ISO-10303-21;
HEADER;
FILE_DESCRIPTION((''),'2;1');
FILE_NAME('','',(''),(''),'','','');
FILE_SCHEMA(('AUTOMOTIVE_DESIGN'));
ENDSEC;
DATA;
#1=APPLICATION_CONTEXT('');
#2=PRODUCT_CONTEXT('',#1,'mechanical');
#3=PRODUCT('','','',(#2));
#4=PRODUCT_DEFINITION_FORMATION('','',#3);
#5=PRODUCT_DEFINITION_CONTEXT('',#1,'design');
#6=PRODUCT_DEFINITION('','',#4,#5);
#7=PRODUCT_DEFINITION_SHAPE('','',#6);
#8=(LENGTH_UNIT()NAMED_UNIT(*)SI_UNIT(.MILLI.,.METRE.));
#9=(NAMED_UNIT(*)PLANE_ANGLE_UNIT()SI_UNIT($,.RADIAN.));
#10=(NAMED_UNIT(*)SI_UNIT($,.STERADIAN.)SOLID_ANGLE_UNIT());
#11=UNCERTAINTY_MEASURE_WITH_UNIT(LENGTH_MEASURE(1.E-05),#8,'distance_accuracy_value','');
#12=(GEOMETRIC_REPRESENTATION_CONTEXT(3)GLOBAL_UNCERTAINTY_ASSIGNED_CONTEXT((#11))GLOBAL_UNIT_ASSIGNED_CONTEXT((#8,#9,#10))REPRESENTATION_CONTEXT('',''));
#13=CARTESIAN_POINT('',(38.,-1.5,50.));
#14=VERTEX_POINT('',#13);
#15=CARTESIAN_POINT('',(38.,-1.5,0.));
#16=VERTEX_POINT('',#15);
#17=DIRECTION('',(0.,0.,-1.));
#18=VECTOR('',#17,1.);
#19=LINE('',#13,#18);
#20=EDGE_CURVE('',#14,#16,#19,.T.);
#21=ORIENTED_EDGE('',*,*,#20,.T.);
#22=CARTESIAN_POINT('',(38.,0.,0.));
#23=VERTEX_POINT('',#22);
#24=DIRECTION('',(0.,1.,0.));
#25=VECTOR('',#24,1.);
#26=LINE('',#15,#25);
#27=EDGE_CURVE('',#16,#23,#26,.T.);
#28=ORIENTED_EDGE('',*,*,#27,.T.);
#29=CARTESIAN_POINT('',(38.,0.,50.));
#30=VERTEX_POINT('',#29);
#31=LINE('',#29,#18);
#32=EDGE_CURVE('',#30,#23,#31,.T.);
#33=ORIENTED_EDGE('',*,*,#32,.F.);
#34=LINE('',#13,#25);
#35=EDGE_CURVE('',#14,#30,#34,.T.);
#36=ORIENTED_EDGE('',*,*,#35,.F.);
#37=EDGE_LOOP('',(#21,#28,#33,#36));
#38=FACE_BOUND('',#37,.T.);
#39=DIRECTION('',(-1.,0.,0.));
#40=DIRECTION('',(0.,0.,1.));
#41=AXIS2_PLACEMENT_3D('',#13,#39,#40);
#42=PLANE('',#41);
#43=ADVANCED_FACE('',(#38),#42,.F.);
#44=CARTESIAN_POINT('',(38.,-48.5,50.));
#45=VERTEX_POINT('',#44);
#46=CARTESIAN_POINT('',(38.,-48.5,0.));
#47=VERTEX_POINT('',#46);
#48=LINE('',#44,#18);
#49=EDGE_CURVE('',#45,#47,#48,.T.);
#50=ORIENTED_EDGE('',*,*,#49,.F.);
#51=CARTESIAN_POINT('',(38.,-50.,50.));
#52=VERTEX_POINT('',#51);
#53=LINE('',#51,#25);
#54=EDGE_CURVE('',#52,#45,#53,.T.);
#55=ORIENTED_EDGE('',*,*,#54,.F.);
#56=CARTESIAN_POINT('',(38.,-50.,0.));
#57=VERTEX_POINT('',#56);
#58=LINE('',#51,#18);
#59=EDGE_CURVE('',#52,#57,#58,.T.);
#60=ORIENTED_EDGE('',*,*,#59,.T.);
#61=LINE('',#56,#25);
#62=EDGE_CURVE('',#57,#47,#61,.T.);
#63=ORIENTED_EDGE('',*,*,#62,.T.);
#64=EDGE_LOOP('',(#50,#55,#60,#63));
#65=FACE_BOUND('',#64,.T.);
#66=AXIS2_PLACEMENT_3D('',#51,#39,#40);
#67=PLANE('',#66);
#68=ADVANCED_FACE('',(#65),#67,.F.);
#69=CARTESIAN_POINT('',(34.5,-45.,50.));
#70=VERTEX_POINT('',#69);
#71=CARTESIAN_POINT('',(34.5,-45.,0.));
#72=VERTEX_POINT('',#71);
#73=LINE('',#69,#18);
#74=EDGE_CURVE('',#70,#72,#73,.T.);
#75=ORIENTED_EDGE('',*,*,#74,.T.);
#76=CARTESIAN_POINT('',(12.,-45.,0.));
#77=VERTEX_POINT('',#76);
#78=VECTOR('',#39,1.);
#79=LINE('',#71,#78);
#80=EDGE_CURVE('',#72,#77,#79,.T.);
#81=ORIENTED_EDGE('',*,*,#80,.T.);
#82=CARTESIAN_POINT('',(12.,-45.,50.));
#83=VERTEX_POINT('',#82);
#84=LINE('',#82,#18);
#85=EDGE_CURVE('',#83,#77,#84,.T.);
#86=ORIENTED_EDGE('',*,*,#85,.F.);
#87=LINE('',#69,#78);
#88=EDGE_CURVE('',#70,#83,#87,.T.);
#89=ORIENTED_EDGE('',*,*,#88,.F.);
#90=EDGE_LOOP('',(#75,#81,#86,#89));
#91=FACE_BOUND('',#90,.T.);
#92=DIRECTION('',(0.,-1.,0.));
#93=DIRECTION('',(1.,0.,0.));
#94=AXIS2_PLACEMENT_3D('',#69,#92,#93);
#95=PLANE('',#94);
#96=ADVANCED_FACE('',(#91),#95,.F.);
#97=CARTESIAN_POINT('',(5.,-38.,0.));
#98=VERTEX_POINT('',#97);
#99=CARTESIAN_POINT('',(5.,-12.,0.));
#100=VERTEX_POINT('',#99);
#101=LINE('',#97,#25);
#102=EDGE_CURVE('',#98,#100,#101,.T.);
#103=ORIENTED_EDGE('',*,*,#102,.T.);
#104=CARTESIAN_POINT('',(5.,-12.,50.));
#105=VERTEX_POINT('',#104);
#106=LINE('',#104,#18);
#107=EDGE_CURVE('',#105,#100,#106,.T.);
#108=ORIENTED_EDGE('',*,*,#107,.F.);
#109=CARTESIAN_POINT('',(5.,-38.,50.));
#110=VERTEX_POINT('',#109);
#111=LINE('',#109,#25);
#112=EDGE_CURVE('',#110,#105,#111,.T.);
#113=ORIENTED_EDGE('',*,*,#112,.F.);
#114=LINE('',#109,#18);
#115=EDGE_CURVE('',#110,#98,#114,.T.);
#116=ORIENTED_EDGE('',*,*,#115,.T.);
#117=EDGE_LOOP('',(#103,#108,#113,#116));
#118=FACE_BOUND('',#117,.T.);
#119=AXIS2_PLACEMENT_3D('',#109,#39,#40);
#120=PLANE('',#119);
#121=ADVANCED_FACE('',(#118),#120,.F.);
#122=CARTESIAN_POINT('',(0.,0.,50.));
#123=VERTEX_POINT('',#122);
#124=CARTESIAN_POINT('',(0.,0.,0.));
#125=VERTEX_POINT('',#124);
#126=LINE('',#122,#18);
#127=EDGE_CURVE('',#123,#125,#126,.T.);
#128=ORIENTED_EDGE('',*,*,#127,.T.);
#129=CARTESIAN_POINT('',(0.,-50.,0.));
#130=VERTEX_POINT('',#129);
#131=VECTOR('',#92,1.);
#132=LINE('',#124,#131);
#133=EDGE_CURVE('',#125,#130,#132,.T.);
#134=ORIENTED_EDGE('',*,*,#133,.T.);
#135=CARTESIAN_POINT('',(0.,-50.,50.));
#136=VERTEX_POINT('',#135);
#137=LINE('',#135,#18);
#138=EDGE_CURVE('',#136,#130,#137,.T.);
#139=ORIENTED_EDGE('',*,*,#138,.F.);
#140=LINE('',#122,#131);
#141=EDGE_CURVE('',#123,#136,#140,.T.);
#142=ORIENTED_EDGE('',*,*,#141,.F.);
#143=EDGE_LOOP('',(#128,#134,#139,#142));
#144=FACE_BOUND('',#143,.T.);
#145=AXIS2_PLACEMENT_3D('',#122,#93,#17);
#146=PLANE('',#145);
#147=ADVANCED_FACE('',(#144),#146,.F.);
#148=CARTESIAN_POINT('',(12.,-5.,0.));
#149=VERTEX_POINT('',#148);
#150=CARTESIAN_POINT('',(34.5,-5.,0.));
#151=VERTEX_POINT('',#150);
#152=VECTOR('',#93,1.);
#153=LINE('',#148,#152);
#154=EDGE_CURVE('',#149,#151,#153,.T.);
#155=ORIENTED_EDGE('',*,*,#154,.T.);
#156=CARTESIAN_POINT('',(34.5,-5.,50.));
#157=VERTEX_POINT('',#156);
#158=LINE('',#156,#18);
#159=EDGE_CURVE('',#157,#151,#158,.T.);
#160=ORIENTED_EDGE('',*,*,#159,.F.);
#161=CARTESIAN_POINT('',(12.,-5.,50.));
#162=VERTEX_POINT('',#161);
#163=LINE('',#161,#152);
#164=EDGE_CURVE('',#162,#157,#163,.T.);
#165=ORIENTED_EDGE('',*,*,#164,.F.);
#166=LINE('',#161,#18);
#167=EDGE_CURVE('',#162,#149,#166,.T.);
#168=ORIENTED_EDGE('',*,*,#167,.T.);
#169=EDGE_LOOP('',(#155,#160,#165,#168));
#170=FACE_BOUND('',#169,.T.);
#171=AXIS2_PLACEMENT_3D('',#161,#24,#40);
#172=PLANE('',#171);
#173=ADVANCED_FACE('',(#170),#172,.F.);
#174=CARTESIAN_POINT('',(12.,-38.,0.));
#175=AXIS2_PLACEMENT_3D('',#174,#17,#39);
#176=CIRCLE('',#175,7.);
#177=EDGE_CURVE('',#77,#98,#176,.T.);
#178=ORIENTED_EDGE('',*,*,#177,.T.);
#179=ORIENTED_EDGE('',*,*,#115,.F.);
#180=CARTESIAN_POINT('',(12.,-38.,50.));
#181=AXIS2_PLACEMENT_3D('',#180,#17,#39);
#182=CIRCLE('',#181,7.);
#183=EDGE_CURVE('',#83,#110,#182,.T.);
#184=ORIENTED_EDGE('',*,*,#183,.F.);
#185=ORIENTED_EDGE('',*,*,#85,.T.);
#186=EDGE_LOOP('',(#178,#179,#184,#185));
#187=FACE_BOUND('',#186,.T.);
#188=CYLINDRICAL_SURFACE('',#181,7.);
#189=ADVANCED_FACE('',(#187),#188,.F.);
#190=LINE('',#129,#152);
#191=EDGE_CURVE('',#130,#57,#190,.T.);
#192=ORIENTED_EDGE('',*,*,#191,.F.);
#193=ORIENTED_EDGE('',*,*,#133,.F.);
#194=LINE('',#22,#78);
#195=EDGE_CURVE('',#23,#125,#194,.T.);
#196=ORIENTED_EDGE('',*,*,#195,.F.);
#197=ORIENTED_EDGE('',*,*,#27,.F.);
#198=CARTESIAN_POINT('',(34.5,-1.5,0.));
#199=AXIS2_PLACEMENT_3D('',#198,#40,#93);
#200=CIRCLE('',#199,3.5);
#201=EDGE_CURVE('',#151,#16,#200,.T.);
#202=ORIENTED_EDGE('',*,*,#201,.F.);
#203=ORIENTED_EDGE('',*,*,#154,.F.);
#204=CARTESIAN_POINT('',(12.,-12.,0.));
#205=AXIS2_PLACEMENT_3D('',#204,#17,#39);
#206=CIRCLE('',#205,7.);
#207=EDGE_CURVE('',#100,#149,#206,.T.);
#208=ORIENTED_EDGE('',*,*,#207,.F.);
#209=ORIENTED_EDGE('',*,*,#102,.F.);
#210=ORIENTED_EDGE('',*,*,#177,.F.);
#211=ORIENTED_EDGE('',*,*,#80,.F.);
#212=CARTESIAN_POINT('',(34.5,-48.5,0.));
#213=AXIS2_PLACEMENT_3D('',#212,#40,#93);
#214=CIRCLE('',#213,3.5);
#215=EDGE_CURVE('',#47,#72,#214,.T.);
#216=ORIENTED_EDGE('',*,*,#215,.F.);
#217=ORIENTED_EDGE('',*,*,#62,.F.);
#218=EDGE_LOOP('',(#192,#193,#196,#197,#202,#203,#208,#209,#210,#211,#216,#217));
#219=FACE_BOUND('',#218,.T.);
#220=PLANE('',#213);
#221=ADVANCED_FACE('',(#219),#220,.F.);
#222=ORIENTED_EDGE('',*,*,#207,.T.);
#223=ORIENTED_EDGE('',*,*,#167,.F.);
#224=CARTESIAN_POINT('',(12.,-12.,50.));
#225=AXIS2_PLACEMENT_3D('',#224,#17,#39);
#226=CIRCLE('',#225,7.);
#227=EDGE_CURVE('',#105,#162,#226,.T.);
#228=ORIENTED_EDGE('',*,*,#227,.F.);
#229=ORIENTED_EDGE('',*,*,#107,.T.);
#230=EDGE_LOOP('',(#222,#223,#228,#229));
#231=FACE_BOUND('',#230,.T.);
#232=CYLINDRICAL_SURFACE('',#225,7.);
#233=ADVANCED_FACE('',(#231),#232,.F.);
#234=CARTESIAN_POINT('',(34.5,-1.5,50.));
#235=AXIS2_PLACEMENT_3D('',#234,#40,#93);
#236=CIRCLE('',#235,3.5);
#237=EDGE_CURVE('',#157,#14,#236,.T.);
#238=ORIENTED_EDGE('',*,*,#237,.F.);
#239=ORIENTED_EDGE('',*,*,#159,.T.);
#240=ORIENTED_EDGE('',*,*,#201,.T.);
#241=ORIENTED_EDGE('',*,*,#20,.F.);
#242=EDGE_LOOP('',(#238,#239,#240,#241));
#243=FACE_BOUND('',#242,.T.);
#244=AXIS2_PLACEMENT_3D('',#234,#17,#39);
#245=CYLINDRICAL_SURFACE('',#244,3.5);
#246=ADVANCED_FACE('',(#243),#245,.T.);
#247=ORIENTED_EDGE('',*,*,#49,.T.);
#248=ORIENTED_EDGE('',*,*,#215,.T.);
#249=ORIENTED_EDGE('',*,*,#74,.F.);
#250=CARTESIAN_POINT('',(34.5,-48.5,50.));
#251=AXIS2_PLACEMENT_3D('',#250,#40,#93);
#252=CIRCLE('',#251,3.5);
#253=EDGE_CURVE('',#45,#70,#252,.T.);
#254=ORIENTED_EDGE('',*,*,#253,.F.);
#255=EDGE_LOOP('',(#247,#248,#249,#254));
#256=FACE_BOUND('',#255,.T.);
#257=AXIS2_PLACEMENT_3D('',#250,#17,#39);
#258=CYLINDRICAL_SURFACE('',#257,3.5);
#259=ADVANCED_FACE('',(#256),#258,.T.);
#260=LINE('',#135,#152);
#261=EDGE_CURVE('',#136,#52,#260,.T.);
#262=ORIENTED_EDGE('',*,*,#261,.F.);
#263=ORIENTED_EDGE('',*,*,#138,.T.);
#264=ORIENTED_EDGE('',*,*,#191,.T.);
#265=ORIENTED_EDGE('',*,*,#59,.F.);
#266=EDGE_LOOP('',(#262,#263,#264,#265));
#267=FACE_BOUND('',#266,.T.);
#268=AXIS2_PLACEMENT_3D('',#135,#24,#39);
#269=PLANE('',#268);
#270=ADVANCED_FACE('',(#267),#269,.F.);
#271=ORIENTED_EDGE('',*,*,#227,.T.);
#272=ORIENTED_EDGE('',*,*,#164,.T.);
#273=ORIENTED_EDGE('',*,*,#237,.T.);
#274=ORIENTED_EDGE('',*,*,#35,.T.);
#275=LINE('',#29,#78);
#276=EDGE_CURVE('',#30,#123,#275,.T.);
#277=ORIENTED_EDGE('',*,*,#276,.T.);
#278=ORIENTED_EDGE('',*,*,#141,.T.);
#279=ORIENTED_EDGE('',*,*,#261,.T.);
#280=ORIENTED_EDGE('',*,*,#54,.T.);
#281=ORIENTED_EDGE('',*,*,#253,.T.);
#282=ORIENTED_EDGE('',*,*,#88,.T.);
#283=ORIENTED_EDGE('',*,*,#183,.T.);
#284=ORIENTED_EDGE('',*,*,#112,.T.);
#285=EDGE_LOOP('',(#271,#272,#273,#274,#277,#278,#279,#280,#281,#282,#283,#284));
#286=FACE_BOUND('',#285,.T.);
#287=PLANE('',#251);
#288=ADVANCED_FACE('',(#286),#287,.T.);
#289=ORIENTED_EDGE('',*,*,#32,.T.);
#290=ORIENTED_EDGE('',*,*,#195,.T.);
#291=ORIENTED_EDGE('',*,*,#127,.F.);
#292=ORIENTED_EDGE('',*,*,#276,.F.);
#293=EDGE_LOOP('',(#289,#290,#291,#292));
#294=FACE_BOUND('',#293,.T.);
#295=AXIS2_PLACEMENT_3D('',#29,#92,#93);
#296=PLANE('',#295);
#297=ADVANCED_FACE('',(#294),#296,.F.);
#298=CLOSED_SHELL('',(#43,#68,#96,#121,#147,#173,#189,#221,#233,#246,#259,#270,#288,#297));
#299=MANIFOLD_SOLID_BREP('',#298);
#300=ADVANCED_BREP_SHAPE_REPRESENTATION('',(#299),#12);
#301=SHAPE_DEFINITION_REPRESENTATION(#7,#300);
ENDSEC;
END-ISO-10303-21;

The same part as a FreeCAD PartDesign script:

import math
import FreeCAD as App
import Part
import Sketcher
Q = App.Units.Quantity

doc = App.newDocument("Part")
body = doc.addObject("PartDesign::Body", "Body")

# Sketch on XY plane
sketch1 = body.newObject("Sketcher::SketchObject", "Sketch")
sketch1.AttachmentSupport = (doc.getObject("XY_Plane"), [""])
sketch1.MapMode = "FlatFace"
sketch1.addGeometry([
    Part.LineSegment(App.Vector(0, 0, 0), App.Vector(0, -50, 0)),  # 0
    Part.LineSegment(App.Vector(0, -50, 0), App.Vector(38, -50, 0)),  # 1
    Part.LineSegment(App.Vector(38, -50, 0), App.Vector(38, -48.5, 0)),  # 2
    Part.ArcOfCircle(Part.Circle(App.Vector(34.5, -48.5, 0), App.Vector(0, 0, 1), 3.5), math.radians(0), math.radians(90)),  # 3
    Part.LineSegment(App.Vector(34.5, -45, 0), App.Vector(12, -45, 0)),  # 4
    Part.ArcOfCircle(Part.Circle(App.Vector(12, -38, 0), App.Vector(0, 0, 1), 7), math.radians(-180), math.radians(-90)),  # 5
    Part.LineSegment(App.Vector(5, -38, 0), App.Vector(5, -12, 0)),  # 6
    Part.ArcOfCircle(Part.Circle(App.Vector(12, -12, 0), App.Vector(0, 0, 1), 7), math.radians(90), math.radians(180)),  # 7
    Part.LineSegment(App.Vector(12, -5, 0), App.Vector(34.5, -5, 0)),  # 8
    Part.ArcOfCircle(Part.Circle(App.Vector(34.5, -1.5, 0), App.Vector(0, 0, 1), 3.5), math.radians(-90), math.radians(0)),  # 9
    Part.LineSegment(App.Vector(38, -1.5, 0), App.Vector(38, 0, 0)),  # 10
    Part.LineSegment(App.Vector(38, 0, 0), App.Vector(0, 0, 0)),  # 11
], False)
sketch1.addConstraint([
    Sketcher.Constraint("Coincident", 0, 2, 1, 1),
    Sketcher.Constraint("Coincident", 1, 2, 2, 1),
    Sketcher.Constraint("Tangent", 2, 2, 3, 1),
    Sketcher.Constraint("Tangent", 3, 2, 4, 1),
    Sketcher.Constraint("Tangent", 4, 2, 5, 2),
    Sketcher.Constraint("Tangent", 5, 1, 6, 1),
    Sketcher.Constraint("Tangent", 6, 2, 7, 2),
    Sketcher.Constraint("Tangent", 7, 1, 8, 1),
    Sketcher.Constraint("Tangent", 8, 2, 9, 1),
    Sketcher.Constraint("Tangent", 9, 2, 10, 1),
    Sketcher.Constraint("Coincident", 10, 2, 11, 1),
    Sketcher.Constraint("Coincident", 11, 2, 0, 1),
    Sketcher.Constraint("Vertical", 0),
    Sketcher.Constraint("Horizontal", 1),
    Sketcher.Constraint("Vertical", 2),
    Sketcher.Constraint("Horizontal", 4),
    Sketcher.Constraint("Vertical", 6),
    Sketcher.Constraint("Horizontal", 8),
    Sketcher.Constraint("Vertical", 10),
    Sketcher.Constraint("Horizontal", 11),
    Sketcher.Constraint("Coincident", 11, 2, -1, 1),
    Sketcher.Constraint("Equal", 5, 7),
    Sketcher.Constraint("Equal", 3, 9),
    Sketcher.Constraint("Vertical", 3, 3, 9, 3),
    Sketcher.Constraint("Equal", 2, 10),
    Sketcher.Constraint("Radius", 5, Q("7 mm")),
    Sketcher.Constraint("Radius", 3, Q("3.5 mm")),
    Sketcher.Constraint("DistanceX", 1, 1, 1, 2, Q("38 mm")),
    Sketcher.Constraint("DistanceY", 0, 2, 0, 1, Q("50 mm")),
    Sketcher.Constraint("DistanceY", 6, 1, 6, 2, Q("26 mm")),
    Sketcher.Constraint("DistanceX", 4, 2, 4, 1, Q("22.5 mm")),
])
pad1 = body.newObject("PartDesign::Pad", "Pad")
pad1.Profile = sketch1
pad1.Length = 50

doc.recompute()
